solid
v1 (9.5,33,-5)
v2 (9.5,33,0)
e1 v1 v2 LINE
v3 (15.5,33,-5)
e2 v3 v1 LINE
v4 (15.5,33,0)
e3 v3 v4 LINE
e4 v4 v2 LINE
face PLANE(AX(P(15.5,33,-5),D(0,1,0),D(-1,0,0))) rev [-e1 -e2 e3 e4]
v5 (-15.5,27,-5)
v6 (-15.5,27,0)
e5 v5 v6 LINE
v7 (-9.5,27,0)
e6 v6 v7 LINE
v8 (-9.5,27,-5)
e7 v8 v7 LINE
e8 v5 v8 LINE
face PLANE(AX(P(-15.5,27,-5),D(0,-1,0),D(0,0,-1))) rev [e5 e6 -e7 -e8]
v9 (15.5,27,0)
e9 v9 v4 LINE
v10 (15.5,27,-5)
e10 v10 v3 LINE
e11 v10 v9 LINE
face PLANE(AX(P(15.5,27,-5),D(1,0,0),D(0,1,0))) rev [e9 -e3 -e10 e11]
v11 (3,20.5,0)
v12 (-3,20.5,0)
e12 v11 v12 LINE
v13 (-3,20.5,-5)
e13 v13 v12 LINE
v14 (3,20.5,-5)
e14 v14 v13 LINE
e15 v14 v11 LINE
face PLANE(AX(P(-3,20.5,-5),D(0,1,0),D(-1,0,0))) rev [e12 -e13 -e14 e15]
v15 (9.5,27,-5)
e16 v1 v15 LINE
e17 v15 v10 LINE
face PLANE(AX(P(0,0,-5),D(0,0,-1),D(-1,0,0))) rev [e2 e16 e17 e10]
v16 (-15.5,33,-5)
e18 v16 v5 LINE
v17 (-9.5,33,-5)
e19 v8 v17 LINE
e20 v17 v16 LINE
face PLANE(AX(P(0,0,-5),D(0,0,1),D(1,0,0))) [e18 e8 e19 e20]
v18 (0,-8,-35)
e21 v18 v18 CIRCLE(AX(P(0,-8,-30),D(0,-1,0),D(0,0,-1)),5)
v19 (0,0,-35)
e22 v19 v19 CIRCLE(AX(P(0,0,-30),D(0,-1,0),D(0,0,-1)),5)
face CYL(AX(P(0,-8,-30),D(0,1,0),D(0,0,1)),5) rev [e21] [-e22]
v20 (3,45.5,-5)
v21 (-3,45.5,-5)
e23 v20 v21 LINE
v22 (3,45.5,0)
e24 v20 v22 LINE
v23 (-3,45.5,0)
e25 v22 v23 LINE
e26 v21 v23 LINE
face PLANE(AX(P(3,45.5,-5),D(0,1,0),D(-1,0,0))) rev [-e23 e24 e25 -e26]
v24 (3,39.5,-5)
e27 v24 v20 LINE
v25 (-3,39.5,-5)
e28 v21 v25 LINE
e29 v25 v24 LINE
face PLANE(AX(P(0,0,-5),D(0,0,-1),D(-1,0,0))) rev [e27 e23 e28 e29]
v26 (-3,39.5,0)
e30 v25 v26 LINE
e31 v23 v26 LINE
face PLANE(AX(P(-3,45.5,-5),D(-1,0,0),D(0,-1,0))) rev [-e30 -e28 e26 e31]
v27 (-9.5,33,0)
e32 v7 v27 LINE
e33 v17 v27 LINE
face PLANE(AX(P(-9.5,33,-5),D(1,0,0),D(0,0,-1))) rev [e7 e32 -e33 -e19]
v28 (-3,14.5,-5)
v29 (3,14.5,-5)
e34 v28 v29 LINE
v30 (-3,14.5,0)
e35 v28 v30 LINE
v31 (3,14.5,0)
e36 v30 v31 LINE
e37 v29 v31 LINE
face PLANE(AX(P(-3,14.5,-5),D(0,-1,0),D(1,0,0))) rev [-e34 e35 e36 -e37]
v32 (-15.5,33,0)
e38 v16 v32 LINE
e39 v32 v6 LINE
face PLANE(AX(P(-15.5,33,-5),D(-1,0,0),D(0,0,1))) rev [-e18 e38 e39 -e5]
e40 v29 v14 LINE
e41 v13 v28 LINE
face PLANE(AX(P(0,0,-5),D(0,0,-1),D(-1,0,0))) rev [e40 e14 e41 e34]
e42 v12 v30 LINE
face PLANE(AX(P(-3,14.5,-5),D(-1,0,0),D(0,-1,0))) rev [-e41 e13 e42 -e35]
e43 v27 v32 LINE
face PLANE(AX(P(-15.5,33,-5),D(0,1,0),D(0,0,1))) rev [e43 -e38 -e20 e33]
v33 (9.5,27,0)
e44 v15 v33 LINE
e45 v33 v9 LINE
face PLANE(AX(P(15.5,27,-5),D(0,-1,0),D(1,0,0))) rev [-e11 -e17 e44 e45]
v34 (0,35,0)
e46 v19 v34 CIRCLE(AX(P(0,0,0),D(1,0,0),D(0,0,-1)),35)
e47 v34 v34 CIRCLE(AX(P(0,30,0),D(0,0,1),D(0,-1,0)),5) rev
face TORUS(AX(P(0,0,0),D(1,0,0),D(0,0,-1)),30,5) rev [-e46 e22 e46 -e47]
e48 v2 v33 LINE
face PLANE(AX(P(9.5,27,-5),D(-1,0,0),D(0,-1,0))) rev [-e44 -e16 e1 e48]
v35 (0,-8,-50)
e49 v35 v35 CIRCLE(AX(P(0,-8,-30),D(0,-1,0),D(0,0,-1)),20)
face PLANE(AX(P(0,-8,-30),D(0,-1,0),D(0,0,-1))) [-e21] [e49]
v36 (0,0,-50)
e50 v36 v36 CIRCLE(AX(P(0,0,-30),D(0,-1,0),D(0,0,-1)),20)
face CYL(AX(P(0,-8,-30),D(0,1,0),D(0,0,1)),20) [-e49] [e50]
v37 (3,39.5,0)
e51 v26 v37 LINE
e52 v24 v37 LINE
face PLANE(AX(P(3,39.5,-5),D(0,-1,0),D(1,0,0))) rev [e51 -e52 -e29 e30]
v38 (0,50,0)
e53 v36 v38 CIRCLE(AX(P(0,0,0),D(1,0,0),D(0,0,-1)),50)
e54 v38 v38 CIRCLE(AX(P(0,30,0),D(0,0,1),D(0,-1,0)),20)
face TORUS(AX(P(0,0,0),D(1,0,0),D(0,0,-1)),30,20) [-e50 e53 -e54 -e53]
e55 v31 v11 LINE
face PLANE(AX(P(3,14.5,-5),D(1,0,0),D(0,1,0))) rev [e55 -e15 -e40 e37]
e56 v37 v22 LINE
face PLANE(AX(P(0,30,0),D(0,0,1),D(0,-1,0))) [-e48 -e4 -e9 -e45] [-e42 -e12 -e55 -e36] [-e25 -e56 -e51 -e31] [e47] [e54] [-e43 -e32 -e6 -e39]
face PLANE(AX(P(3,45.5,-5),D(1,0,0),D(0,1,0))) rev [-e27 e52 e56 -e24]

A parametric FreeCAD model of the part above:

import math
import FreeCAD as App
import Part
import Sketcher


def add_polygon(sketch, points):
    """Adds a closed chain of lines whose ends are joined by coincident constraints."""
    first, n = sketch.GeometryCount, len(points)
    for a, b in zip(points, points[1:] + points[:1]):
        sketch.addGeometry(Part.LineSegment(App.Vector(*a, 0), App.Vector(*b, 0)), False)
    for i in range(n):
        sketch.addConstraint(Sketcher.Constraint("Coincident", first + i, 2, first + (i + 1) % n, 1))

doc = App.newDocument("Part")
body = doc.addObject("PartDesign::Body", "Body")

sketch1 = doc.addObject("Sketcher::SketchObject", "Sketch")
body.addObject(sketch1)
sketch1.AttachmentSupport = (doc.XZ_Plane, [""])
sketch1.MapMode = "FlatFace"
sketch1.addGeometry([
    Part.Circle(App.Vector(0, -30, 0), App.Vector(0, 0, 1), 20),
    Part.Circle(App.Vector(0, -30, 0), App.Vector(0, 0, 1), 5),
], False)
sketch1.addConstraint([
    Sketcher.Constraint("Coincident", 1, 3, 0, 3),
    Sketcher.Constraint("PointOnObject", 0, 3, -2),
    Sketcher.Constraint("Diameter", 0, 40.0),
    Sketcher.Constraint("Diameter", 1, 10.0),
    Sketcher.Constraint("DistanceY", 0, 3, -1, 1, 30.0),
])

sketch2 = doc.addObject("Sketcher::SketchObject", "Sketch001")
body.addObject(sketch2)
sketch2.AttachmentSupport = (doc.YZ_Plane, [""])
sketch2.MapMode = "FlatFace"
sketch2.addGeometry(Part.ArcOfCircle(Part.Circle(App.Vector(0, 0, 0), App.Vector(0, 0, 1), 30), math.radians(-90), math.radians(0)), False)
sketch2.addConstraint([
    Sketcher.Constraint("Coincident", 0, 3, -1, 1),
    Sketcher.Constraint("PointOnObject", 0, 1, -2),
    Sketcher.Constraint("PointOnObject", 0, 2, -1),
    Sketcher.Constraint("Radius", 0, 30.0),
])
doc.recompute()

additivepipe = doc.addObject("PartDesign::AdditivePipe", "AdditivePipe")
body.addObject(additivepipe)
additivepipe.Profile = sketch1
additivepipe.Spine = (sketch2, ["Edge1"])

sketch3 = doc.addObject("Sketcher::SketchObject", "Sketch002")
body.addObject(sketch3)
sketch3.AttachmentSupport = (doc.XZ_Plane, [""])
sketch3.MapMode = "FlatFace"
sketch3.addGeometry([
    Part.Circle(App.Vector(0, -30, 0), App.Vector(0, 0, 1), 20),
    Part.Circle(App.Vector(0, -30, 0), App.Vector(0, 0, 1), 5),
], False)
sketch3.addConstraint([
    Sketcher.Constraint("Coincident", 1, 3, 0, 3),
    Sketcher.Constraint("PointOnObject", 0, 3, -2),
    Sketcher.Constraint("Diameter", 0, 40.0),
    Sketcher.Constraint("Diameter", 1, 10.0),
    Sketcher.Constraint("DistanceY", 0, 3, -1, 1, 30.0),
])
pad1 = doc.addObject("PartDesign::Pad", "Pad")
body.addObject(pad1)
pad1.Profile = sketch3
pad1.Length = 8

sketch4 = doc.addObject("Sketcher::SketchObject", "Sketch003")
body.addObject(sketch4)
sketch4.AttachmentSupport = (doc.XY_Plane, [""])
sketch4.MapMode = "FlatFace"
add_polygon(sketch4, [(-3, 46), (-3, 40), (3, 40), (3, 46)])
add_polygon(sketch4, [(-16, 33), (-16, 27), (-10, 27), (-10, 33)])
add_polygon(sketch4, [(10, 33), (10, 27), (16, 27), (16, 33)])
add_polygon(sketch4, [(-3, 20), (-3, 14), (3, 14), (3, 20)])
sketch4.addConstraint([
    Sketcher.Constraint("Vertical", 0),
    Sketcher.Constraint("Horizontal", 1),
    Sketcher.Constraint("Vertical", 2),
    Sketcher.Constraint("Horizontal", 3),
    Sketcher.Constraint("Vertical", 4),
    Sketcher.Constraint("Horizontal", 5),
    Sketcher.Constraint("Vertical", 6),
    Sketcher.Constraint("Horizontal", 7),
    Sketcher.Constraint("Vertical", 8),
    Sketcher.Constraint("Horizontal", 9),
    Sketcher.Constraint("Vertical", 10),
    Sketcher.Constraint("Horizontal", 11),
    Sketcher.Constraint("Vertical", 12),
    Sketcher.Constraint("Horizontal", 13),
    Sketcher.Constraint("Vertical", 14),
    Sketcher.Constraint("Horizontal", 15),
    Sketcher.Constraint("Symmetric", 5, 2, 8, 2, -2),
    Sketcher.Constraint("Symmetric", 7, 2, 10, 2, -2),
    Sketcher.Constraint("Vertical", 3, 2, 12, 2),
    Sketcher.Constraint("Vertical", 2, 2, 13, 2),
    Sketcher.Constraint("Equal", 3, 5),
    Sketcher.Constraint("Equal", 15, 0),
    Sketcher.Constraint("Equal", 2, 4),
    Sketcher.Constraint("Equal", 10, 12),
    Sketcher.Constraint("DistanceX", 1, 1, 1, 2, 6.0),
    Sketcher.Constraint("DistanceX", 0, 2, -1, 1, 3.0),
    Sketcher.Constraint("DistanceY", -1, 1, 4, 2, 27.0),
    Sketcher.Constraint("DistanceX", 5, 2, 8, 2, 19.0),
    Sketcher.Constraint("DistanceY", -1, 1, 0, 2, 39.5),
    Sketcher.Constraint("DistanceY", -1, 1, 12, 2, 14.5),
])
pocket1 = doc.addObject("PartDesign::Pocket", "Pocket")
body.addObject(pocket1)
pocket1.Profile = sketch4
pocket1.Length = 5

doc.recompute()
